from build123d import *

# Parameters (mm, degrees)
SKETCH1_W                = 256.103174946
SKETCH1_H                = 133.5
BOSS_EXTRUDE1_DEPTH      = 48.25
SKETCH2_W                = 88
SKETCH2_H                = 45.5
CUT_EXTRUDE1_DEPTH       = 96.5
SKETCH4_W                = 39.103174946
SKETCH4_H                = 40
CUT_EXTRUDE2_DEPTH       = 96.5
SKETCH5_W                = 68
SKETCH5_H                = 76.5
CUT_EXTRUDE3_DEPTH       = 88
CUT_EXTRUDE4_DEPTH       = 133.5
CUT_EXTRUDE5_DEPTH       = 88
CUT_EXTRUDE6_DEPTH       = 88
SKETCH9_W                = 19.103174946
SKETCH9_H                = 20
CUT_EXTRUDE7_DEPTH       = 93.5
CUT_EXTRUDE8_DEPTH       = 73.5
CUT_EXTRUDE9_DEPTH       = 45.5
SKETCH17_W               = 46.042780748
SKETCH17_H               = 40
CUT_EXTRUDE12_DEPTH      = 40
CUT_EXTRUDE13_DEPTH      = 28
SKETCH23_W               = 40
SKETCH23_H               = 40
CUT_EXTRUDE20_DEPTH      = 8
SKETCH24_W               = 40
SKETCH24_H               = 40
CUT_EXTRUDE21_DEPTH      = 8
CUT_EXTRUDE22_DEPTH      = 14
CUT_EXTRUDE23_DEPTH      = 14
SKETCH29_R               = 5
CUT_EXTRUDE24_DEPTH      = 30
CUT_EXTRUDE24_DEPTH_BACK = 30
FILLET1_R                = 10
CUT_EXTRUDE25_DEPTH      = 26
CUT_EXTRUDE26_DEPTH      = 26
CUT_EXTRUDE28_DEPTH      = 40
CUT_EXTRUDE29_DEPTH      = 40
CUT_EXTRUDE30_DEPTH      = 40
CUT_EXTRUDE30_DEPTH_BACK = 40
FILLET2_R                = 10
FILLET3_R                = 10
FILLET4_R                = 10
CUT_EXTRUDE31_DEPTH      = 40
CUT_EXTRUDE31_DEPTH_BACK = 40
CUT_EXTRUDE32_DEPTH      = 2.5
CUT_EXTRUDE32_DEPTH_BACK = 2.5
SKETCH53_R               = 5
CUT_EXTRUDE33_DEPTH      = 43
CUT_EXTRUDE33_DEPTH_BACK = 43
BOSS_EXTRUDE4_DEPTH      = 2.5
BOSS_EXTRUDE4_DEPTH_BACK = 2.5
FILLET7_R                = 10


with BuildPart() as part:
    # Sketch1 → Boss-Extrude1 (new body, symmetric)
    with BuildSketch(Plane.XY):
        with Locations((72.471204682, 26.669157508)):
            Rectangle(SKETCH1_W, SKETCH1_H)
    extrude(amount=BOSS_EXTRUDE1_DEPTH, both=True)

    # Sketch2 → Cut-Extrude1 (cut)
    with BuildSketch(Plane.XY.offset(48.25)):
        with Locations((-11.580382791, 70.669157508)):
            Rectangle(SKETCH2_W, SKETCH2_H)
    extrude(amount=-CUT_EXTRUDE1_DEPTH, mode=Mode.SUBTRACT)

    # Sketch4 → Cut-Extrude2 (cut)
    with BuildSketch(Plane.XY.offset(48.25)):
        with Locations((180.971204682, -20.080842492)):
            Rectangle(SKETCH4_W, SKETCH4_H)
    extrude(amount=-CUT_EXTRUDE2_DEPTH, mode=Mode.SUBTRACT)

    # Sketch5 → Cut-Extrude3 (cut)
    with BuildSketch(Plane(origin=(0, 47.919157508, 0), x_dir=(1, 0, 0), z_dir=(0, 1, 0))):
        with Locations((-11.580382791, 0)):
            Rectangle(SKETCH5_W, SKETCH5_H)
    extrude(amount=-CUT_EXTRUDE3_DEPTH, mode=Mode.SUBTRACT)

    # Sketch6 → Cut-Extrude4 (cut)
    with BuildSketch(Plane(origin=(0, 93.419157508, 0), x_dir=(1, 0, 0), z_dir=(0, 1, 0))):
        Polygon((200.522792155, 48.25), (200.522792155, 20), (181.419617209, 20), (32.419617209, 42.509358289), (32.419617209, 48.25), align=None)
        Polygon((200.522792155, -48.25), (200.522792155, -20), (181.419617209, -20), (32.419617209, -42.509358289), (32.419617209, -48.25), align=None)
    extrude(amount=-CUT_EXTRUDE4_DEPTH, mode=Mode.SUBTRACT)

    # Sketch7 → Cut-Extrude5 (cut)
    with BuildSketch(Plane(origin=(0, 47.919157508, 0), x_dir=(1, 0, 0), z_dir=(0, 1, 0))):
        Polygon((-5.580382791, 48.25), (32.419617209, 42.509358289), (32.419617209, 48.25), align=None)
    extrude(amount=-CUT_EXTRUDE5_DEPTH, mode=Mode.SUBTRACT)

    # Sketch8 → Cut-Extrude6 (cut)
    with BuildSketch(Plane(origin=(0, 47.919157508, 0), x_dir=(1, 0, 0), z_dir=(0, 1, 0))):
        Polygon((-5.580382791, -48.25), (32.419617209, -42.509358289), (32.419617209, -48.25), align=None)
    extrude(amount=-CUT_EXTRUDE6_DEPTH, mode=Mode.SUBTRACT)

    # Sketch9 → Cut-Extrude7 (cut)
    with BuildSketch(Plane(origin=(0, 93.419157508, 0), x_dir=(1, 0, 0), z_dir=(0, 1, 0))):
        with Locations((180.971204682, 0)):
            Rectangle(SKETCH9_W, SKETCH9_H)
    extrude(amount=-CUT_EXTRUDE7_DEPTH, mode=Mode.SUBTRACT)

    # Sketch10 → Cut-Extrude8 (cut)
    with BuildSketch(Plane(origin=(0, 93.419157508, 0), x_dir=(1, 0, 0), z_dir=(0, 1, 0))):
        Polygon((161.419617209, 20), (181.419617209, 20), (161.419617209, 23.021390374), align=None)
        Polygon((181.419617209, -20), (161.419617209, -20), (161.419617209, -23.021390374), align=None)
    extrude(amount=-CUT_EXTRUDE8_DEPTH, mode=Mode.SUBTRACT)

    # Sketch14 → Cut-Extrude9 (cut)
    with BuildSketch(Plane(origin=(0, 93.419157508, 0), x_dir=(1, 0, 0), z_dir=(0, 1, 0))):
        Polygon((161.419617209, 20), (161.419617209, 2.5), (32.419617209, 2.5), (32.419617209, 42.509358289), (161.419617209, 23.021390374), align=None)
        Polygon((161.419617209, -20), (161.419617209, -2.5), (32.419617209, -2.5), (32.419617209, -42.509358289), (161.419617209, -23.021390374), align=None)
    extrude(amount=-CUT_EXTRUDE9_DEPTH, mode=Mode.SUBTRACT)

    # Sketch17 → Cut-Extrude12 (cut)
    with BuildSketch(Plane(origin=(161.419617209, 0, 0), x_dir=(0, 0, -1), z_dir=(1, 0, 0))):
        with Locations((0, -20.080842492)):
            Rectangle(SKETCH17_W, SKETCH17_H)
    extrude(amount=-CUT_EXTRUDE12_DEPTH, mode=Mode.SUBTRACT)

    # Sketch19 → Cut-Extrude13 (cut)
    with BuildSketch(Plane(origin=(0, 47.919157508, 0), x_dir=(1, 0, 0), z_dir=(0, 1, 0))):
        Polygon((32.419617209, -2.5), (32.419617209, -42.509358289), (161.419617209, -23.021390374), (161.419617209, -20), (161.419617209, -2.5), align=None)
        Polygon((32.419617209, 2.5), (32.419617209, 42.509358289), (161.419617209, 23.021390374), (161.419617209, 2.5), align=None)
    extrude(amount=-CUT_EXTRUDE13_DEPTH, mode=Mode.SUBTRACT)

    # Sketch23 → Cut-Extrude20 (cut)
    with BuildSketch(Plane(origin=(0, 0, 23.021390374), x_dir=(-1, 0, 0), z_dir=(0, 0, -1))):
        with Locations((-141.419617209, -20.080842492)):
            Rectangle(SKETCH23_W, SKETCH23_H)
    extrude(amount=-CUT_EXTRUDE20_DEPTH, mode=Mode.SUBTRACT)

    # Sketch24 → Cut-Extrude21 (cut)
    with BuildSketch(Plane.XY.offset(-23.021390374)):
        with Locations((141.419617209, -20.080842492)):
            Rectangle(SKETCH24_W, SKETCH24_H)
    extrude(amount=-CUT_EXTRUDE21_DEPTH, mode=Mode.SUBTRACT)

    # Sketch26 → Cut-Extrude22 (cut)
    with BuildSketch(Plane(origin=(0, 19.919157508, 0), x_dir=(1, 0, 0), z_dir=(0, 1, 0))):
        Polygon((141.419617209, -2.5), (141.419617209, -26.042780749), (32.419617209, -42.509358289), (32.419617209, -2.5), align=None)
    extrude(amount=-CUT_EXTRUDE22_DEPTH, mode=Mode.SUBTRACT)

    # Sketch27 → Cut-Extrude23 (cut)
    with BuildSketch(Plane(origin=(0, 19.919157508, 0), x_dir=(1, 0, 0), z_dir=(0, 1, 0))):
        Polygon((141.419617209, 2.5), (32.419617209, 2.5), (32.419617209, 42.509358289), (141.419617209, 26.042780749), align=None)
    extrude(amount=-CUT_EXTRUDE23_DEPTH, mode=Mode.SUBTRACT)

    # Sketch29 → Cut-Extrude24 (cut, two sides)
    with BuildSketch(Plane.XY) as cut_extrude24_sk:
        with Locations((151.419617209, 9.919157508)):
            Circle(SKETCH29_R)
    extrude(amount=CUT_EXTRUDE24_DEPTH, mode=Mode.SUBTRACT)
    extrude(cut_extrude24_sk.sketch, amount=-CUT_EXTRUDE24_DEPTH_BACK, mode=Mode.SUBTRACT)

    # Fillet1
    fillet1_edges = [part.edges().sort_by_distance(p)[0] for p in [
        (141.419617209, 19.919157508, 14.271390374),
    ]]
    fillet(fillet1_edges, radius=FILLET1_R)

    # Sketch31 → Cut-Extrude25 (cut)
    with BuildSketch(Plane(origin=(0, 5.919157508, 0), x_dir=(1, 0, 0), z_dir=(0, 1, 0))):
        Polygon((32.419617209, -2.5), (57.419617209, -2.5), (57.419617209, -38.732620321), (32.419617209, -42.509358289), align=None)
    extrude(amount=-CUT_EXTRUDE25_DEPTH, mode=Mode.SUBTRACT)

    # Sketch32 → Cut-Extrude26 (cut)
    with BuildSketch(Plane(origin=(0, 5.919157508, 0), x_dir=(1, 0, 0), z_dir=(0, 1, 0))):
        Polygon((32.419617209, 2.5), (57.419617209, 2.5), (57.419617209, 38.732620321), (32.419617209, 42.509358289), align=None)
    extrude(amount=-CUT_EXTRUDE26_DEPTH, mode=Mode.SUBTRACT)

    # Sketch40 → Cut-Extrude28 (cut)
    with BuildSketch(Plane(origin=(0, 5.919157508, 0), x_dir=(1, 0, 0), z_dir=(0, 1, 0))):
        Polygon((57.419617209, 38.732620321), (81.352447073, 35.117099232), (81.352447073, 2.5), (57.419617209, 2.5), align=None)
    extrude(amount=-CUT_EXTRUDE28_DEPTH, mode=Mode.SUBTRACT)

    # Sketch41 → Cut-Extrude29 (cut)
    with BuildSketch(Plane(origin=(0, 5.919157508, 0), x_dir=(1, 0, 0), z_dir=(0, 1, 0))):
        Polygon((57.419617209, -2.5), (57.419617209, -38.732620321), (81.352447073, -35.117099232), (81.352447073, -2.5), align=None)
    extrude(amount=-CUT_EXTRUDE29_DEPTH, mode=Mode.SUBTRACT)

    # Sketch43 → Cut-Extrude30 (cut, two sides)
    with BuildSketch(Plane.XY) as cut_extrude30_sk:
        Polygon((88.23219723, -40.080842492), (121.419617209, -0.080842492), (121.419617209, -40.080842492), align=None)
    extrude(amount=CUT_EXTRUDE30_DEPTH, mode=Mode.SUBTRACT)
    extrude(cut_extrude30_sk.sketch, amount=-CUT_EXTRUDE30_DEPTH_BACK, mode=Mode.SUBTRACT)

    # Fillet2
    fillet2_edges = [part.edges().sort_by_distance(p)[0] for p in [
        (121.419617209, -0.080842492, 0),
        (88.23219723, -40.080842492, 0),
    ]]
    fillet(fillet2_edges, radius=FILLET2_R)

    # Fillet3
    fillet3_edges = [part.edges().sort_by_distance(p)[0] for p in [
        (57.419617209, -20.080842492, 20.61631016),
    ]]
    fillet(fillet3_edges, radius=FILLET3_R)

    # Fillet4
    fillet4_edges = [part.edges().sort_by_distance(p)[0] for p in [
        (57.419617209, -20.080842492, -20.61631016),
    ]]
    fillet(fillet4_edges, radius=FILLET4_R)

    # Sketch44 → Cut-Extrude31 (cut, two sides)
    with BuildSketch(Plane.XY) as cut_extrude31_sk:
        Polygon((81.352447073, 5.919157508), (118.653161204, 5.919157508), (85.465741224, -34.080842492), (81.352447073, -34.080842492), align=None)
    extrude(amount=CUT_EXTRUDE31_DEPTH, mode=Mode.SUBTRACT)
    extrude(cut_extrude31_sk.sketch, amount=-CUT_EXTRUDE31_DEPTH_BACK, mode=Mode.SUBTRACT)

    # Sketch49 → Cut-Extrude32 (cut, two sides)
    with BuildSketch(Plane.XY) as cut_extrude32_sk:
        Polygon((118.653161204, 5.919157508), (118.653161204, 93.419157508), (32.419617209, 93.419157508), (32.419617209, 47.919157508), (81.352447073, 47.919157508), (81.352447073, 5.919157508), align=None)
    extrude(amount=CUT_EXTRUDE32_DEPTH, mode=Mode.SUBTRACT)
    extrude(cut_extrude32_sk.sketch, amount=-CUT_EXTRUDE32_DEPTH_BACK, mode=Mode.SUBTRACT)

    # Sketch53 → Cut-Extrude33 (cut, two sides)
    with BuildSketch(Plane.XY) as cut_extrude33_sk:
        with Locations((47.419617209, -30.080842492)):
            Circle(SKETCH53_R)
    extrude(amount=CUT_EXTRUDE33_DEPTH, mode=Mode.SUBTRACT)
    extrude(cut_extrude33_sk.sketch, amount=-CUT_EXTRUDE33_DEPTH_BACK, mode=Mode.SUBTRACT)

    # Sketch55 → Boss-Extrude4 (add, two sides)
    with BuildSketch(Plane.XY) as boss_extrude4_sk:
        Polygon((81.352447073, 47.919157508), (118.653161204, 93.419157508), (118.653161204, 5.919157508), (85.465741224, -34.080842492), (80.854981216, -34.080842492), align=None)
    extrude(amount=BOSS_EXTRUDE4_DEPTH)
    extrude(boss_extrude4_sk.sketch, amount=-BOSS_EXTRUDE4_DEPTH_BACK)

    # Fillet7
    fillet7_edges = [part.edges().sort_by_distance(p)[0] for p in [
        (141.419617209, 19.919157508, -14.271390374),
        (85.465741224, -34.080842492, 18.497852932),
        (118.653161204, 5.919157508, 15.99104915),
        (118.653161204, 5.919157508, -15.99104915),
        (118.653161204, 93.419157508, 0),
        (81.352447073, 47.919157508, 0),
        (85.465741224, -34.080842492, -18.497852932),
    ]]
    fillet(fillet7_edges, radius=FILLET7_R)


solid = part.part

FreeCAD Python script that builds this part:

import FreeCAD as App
import Part
import Sketcher

V = App.Vector


def edges_at(feature, points):
    """Names of the edges that pass closest to the given points."""
    edges = feature.Shape.Edges
    near = lambda p: min(range(len(edges)), key=lambda i: edges[i].distToShape(Part.Vertex(*p))[0])
    return sorted({f"Edge{near(p) + 1}" for p in points})

doc = App.newDocument("Part")
body = doc.addObject("PartDesign::Body", "Body")

# Sketch on XY plane
sketch1 = body.newObject("Sketcher::SketchObject", "Sketch")
sketch1.AttachmentSupport = (doc.getObject("XY_Plane"), [""])
sketch1.MapMode = "FlatFace"
sketch1.addGeometry(Part.LineSegment(V(-56, 93, 0), V(-56, -40, 0)), False)
sketch1.addGeometry(Part.LineSegment(V(-56, -40, 0), V(201, -40, 0)), False)
sketch1.addGeometry(Part.LineSegment(V(201, -40, 0), V(201, 93, 0)), False)
sketch1.addGeometry(Part.LineSegment(V(201, 93, 0), V(-56, 93, 0)), False)
sketch1.addConstraint(Sketcher.Constraint("Coincident", 0, 2, 1, 1))
sketch1.addConstraint(Sketcher.Constraint("Coincident", 1, 2, 2, 1))
sketch1.addConstraint(Sketcher.Constraint("Coincident", 2, 2, 3, 1))
sketch1.addConstraint(Sketcher.Constraint("Coincident", 3, 2, 0, 1))
sketch1.addConstraint(Sketcher.Constraint("Vertical", 0))
sketch1.addConstraint(Sketcher.Constraint("Horizontal", 1))
sketch1.addConstraint(Sketcher.Constraint("Vertical", 2))
sketch1.addConstraint(Sketcher.Constraint("Horizontal", 3))
sketch1.addConstraint(Sketcher.Constraint("DistanceY", 0, 2, 0, 1, 133.5))
sketch1.addConstraint(Sketcher.Constraint("DistanceX", 1, 1, 1, 2, 256.103175))
sketch1.addConstraint(Sketcher.Constraint("DistanceX", 0, 2, -1, 1, 55.580383))
sketch1.addConstraint(Sketcher.Constraint("DistanceY", 0, 2, -1, 1, 40.080842))
pad1 = body.newObject("PartDesign::Pad", "Pad")
pad1.Profile = sketch1
pad1.Length = 96.5
pad1.Midplane = True

# Sketch on XY plane
sketch2 = body.newObject("Sketcher::SketchObject", "Sketch001")
sketch2.AttachmentSupport = (doc.getObject("XY_Plane"), [""])
sketch2.MapMode = "FlatFace"
sketch2.AttachmentOffset = App.Placement(V(0, 0, 48.25), App.Rotation())
sketch2.addGeometry(Part.LineSegment(V(-56, 93, 0), V(-56, 48, 0)), False)
sketch2.addGeometry(Part.LineSegment(V(-56, 48, 0), V(32, 48, 0)), False)
sketch2.addGeometry(Part.LineSegment(V(32, 48, 0), V(32, 93, 0)), False)
sketch2.addGeometry(Part.LineSegment(V(32, 93, 0), V(-56, 93, 0)), False)
sketch2.addConstraint(Sketcher.Constraint("Coincident", 0, 2, 1, 1))
sketch2.addConstraint(Sketcher.Constraint("Coincident", 1, 2, 2, 1))
sketch2.addConstraint(Sketcher.Constraint("Coincident", 2, 2, 3, 1))
sketch2.addConstraint(Sketcher.Constraint("Coincident", 3, 2, 0, 1))
sketch2.addConstraint(Sketcher.Constraint("Vertical", 0))
sketch2.addConstraint(Sketcher.Constraint("Horizontal", 1))
sketch2.addConstraint(Sketcher.Constraint("Vertical", 2))
sketch2.addConstraint(Sketcher.Constraint("Horizontal", 3))
sketch2.addConstraint(Sketcher.Constraint("DistanceX", 1, 1, 1, 2, 88.0))
sketch2.addConstraint(Sketcher.Constraint("DistanceY", 0, 2, 0, 1, 45.5))
sketch2.addConstraint(Sketcher.Constraint("DistanceX", 0, 2, -1, 1, 55.580383))
sketch2.addConstraint(Sketcher.Constraint("DistanceY", -1, 1, 0, 2, 47.919158))
pocket1 = body.newObject("PartDesign::Pocket", "Pocket")
pocket1.Profile = sketch2
pocket1.Length = 96.5

# Sketch on XY plane
sketch3 = body.newObject("Sketcher::SketchObject", "Sketch002")
sketch3.AttachmentSupport = (doc.getObject("XY_Plane"), [""])
sketch3.MapMode = "FlatFace"
sketch3.AttachmentOffset = App.Placement(V(0, 0, 48.25), App.Rotation())
sketch3.addGeometry(Part.LineSegment(V(161, 0, 0), V(161, -40, 0)), False)
sketch3.addGeometry(Part.LineSegment(V(161, -40, 0), V(201, -40, 0)), False)
sketch3.addGeometry(Part.LineSegment(V(201, -40, 0), V(201, 0, 0)), False)
sketch3.addGeometry(Part.LineSegment(V(201, 0, 0), V(161, 0, 0)), False)
sketch3.addConstraint(Sketcher.Constraint("Coincident", 0, 2, 1, 1))
sketch3.addConstraint(Sketcher.Constraint("Coincident", 1, 2, 2, 1))
sketch3.addConstraint(Sketcher.Constraint("Coincident", 2, 2, 3, 1))
sketch3.addConstraint(Sketcher.Constraint("Coincident", 3, 2, 0, 1))
sketch3.addConstraint(Sketcher.Constraint("Vertical", 0))
sketch3.addConstraint(Sketcher.Constraint("Horizontal", 1))
sketch3.addConstraint(Sketcher.Constraint("Vertical", 2))
sketch3.addConstraint(Sketcher.Constraint("Horizontal", 3))
sketch3.addConstraint(Sketcher.Constraint("DistanceY", 0, 2, 0, 1, 40.0))
sketch3.addConstraint(Sketcher.Constraint("DistanceX", 1, 1, 1, 2, 39.103175))
sketch3.addConstraint(Sketcher.Constraint("DistanceX", -1, 1, 0, 2, 161.419617))
sketch3.addConstraint(Sketcher.Constraint("DistanceY", 0, 2, -1, 1, 40.080842))
pocket2 = body.newObject("PartDesign::Pocket", "Pocket001")
pocket2.Profile = sketch3
pocket2.Length = 96.5

# Sketch on XZ plane
sketch4 = body.newObject("Sketcher::SketchObject", "Sketch003")
sketch4.AttachmentSupport = (doc.getObject("XZ_Plane"), [""])
sketch4.MapMode = "FlatFace"
sketch4.AttachmentOffset = App.Placement(V(0, 0, -47.919158), App.Rotation())
sketch4.addGeometry(Part.LineSegment(V(-46, -38, 0), V(-46, 38, 0)), False)
sketch4.addGeometry(Part.LineSegment(V(-46, 38, 0), V(22, 38, 0)), False)
sketch4.addGeometry(Part.LineSegment(V(22, 38, 0), V(22, -38, 0)), False)
sketch4.addGeometry(Part.LineSegment(V(22, -38, 0), V(-46, -38, 0)), False)
sketch4.addConstraint(Sketcher.Constraint("Coincident", 0, 2, 1, 1))
sketch4.addConstraint(Sketcher.Constraint("Coincident", 1, 2, 2, 1))
sketch4.addConstraint(Sketcher.Constraint("Coincident", 2, 2, 3, 1))
sketch4.addConstraint(Sketcher.Constraint("Coincident", 3, 2, 0, 1))
sketch4.addConstraint(Sketcher.Constraint("Vertical", 0))
sketch4.addConstraint(Sketcher.Constraint("Horizontal", 1))
sketch4.addConstraint(Sketcher.Constraint("Vertical", 2))
sketch4.addConstraint(Sketcher.Constraint("Horizontal", 3))
sketch4.addConstraint(Sketcher.Constraint("DistanceX", 1, 1, 1, 2, 68.0))
sketch4.addConstraint(Sketcher.Constraint("DistanceY", 0, 1, 0, 2, 76.5))
sketch4.addConstraint(Sketcher.Constraint("DistanceY", -1, 1, 0, 2, 38.25))
sketch4.addConstraint(Sketcher.Constraint("DistanceX", 0, 2, -1, 1, 45.580383))
pocket3 = body.newObject("PartDesign::Pocket", "Pocket002")
pocket3.Profile = sketch4
pocket3.Length = 88
pocket3.Reversed = True

# Sketch on XZ plane
sketch5 = body.newObject("Sketcher::SketchObject", "Sketch004")
sketch5.AttachmentSupport = (doc.getObject("XZ_Plane"), [""])
sketch5.MapMode = "FlatFace"
sketch5.AttachmentOffset = App.Placement(V(0, 0, -93.419158), App.Rotation())
sketch5.addGeometry(Part.LineSegment(V(201, -20, 0), V(201, -48, 0)), False)
sketch5.addGeometry(Part.LineSegment(V(201, -48, 0), V(32, -48, 0)), False)
sketch5.addGeometry(Part.LineSegment(V(32, -48, 0), V(32, -43, 0)), False)
sketch5.addGeometry(Part.LineSegment(V(32, -43, 0), V(181, -20, 0)), False)
sketch5.addGeometry(Part.LineSegment(V(181, -20, 0), V(201, -20, 0)), False)
sketch5.addGeometry(Part.LineSegment(V(201, 48, 0), V(201, 20, 0)), False)
sketch5.addGeometry(Part.LineSegment(V(201, 20, 0), V(181, 20, 0)), False)
sketch5.addGeometry(Part.LineSegment(V(181, 20, 0), V(32, 43, 0)), False)
sketch5.addGeometry(Part.LineSegment(V(32, 43, 0), V(32, 48, 0)), False)
sketch5.addGeometry(Part.LineSegment(V(32, 48, 0), V(201, 48, 0)), False)
sketch5.addConstraint(Sketcher.Constraint("Coincident", 0, 2, 1, 1))
sketch5.addConstraint(Sketcher.Constraint("Coincident", 1, 2, 2, 1))
sketch5.addConstraint(Sketcher.Constraint("Coincident", 2, 2, 3, 1))
sketch5.addConstraint(Sketcher.Constraint("Coincident", 3, 2, 4, 1))
sketch5.addConstraint(Sketcher.Constraint("Coincident", 4, 2, 0, 1))
sketch5.addConstraint(Sketcher.Constraint("Coincident", 5, 2, 6, 1))
sketch5.addConstraint(Sketcher.Constraint("Coincident", 6, 2, 7, 1))
sketch5.addConstraint(Sketcher.Constraint("Coincident", 7, 2, 8, 1))
sketch5.addConstraint(Sketcher.Constraint("Coincident", 8, 2, 9, 1))
sketch5.addConstraint(Sketcher.Constraint("Coincident", 9, 2, 5, 1))
sketch5.addConstraint(Sketcher.Constraint("Vertical", 0))
sketch5.addConstraint(Sketcher.Constraint("Horizontal", 1))
sketch5.addConstraint(Sketcher.Constraint("Vertical", 2))
sketch5.addConstraint(Sketcher.Constraint("Horizontal", 4))
sketch5.addConstraint(Sketcher.Constraint("Vertical", 5))
sketch5.addConstraint(Sketcher.Constraint("Horizontal", 6))
sketch5.addConstraint(Sketcher.Constraint("Vertical", 8))
sketch5.addConstraint(Sketcher.Constraint("Horizontal", 9))
sketch5.addConstraint(Sketcher.Constraint("Symmetric", 4, 2, 5, 2, -1))
sketch5.addConstraint(Sketcher.Constraint("Symmetric", 2, 2, 7, 2, -1))
sketch5.addConstraint(Sketcher.Constraint("Vertical", 3, 2, 6, 2))
sketch5.addConstraint(Sketcher.Constraint("Equal", 0, 5))
sketch5.addConstraint(Sketcher.Constraint("DistanceY", 3, 2, -1, 1, 20.0))
sketch5.addConstraint(Sketcher.Constraint("DistanceX", 2, 2, 3, 2, 149.0))
sketch5.addConstraint(Sketcher.Constraint("DistanceY", 0, 2, 0, 1, 28.25))
sketch5.addConstraint(Sketcher.Constraint("DistanceY", 2, 1, 2, 2, 5.740642))
sketch5.addConstraint(Sketcher.Constraint("DistanceX", 1, 2, 1, 1, 168.103175))
sketch5.addConstraint(Sketcher.Constraint("DistanceX", -1, 1, 0, 2, 200.522792))
pocket4 = body.newObject("PartDesign::Pocket", "Pocket003")
pocket4.Profile = sketch5
pocket4.Length = 133.5
pocket4.Reversed = True

# Sketch on XZ plane
sketch6 = body.newObject("Sketcher::SketchObject", "Sketch005")
sketch6.AttachmentSupport = (doc.getObject("XZ_Plane"), [""])
sketch6.MapMode = "FlatFace"
sketch6.AttachmentOffset = App.Placement(V(0, 0, -47.919158), App.Rotation())
sketch6.addGeometry(Part.LineSegment(V(-6, -48, 0), V(32, -43, 0)), False)
sketch6.addGeometry(Part.LineSegment(V(32, -43, 0), V(32, -48, 0)), False)
sketch6.addGeometry(Part.LineSegment(V(32, -48, 0), V(-6, -48, 0)), False)
sketch6.addConstraint(Sketcher.Constraint("Coincident", 0, 2, 1, 1))
sketch6.addConstraint(Sketcher.Constraint("Coincident", 1, 2, 2, 1))
sketch6.addConstraint(Sketcher.Constraint("Coincident", 2, 2, 0, 1))
sketch6.addConstraint(Sketcher.Constraint("Vertical", 1))
sketch6.addConstraint(Sketcher.Constraint("Horizontal", 2))
sketch6.addConstraint(Sketcher.Constraint("DistanceX", 2, 2, 2, 1, 38.0))
sketch6.addConstraint(Sketcher.Constraint("DistanceY", 1, 2, -1, 1, 48.25))
sketch6.addConstraint(Sketcher.Constraint("DistanceY", 1, 2, 1, 1, 5.740642))
sketch6.addConstraint(Sketcher.Constraint("DistanceX", -1, 1, 0, 2, 32.419617))
pocket5 = body.newObject("PartDesign::Pocket", "Pocket004")
pocket5.Profile = sketch6
pocket5.Length = 88
pocket5.Reversed = True

# Sketch on XZ plane
sketch7 = body.newObject("Sketcher::SketchObject", "Sketch006")
sketch7.AttachmentSupport = (doc.getObject("XZ_Plane"), [""])
sketch7.MapMode = "FlatFace"
sketch7.AttachmentOffset = App.Placement(V(0, 0, -47.919158), App.Rotation())
sketch7.addGeometry(Part.LineSegment(V(32, 43, 0), V(-6, 48, 0)), False)
sketch7.addGeometry(Part.LineSegment(V(-6, 48, 0), V(32, 48, 0)), False)
sketch7.addGeometry(Part.LineSegment(V(32, 48, 0), V(32, 43, 0)), False)
sketch7.addConstraint(Sketcher.Constraint("Coincident", 0, 2, 1, 1))
sketch7.addConstraint(Sketcher.Constraint("Coincident", 1, 2, 2, 1))
sketch7.addConstraint(Sketcher.Constraint("Coincident", 2, 2, 0, 1))
sketch7.addConstraint(Sketcher.Constraint("Horizontal", 1))
sketch7.addConstraint(Sketcher.Constraint("Vertical", 2))
sketch7.addConstraint(Sketcher.Constraint("DistanceX", 1, 1, 1, 2, 38.0))
sketch7.addConstraint(Sketcher.Constraint("DistanceY", -1, 1, 0, 2, 48.25))
sketch7.addConstraint(Sketcher.Constraint("DistanceY", 2, 2, 2, 1, 5.740642))
sketch7.addConstraint(Sketcher.Constraint("DistanceX", 0, 2, -1, 1, 5.580383))
pocket6 = body.newObject("PartDesign::Pocket", "Pocket005")
pocket6.Profile = sketch7
pocket6.Length = 88
pocket6.Reversed = True

# Sketch on XZ plane
sketch8 = body.newObject("Sketcher::SketchObject", "Sketch007")
sketch8.AttachmentSupport = (doc.getObject("XZ_Plane"), [""])
sketch8.MapMode = "FlatFace"
sketch8.AttachmentOffset = App.Placement(V(0, 0, -93.419158), App.Rotation())
sketch8.addGeometry(Part.LineSegment(V(171, -10, 0), V(171, 10, 0)), False)
sketch8.addGeometry(Part.LineSegment(V(171, 10, 0), V(191, 10, 0)), False)
sketch8.addGeometry(Part.LineSegment(V(191, 10, 0), V(191, -10, 0)), False)
sketch8.addGeometry(Part.LineSegment(V(191, -10, 0), V(171, -10, 0)), False)
sketch8.addConstraint(Sketcher.Constraint("Coincident", 0, 2, 1, 1))
sketch8.addConstraint(Sketcher.Constraint("Coincident", 1, 2, 2, 1))
sketch8.addConstraint(Sketcher.Constraint("Coincident", 2, 2, 3, 1))
sketch8.addConstraint(Sketcher.Constraint("Coincident", 3, 2, 0, 1))
sketch8.addConstraint(Sketcher.Constraint("Vertical", 0))
sketch8.addConstraint(Sketcher.Constraint("Horizontal", 1))
sketch8.addConstraint(Sketcher.Constraint("Vertical", 2))
sketch8.addConstraint(Sketcher.Constraint("Horizontal", 3))
sketch8.addConstraint(Sketcher.Constraint("DistanceY", 0, 1, 0, 2, 20.0))
sketch8.addConstraint(Sketcher.Constraint("DistanceY", -1, 1, 0, 2, 10.0))
sketch8.addConstraint(Sketcher.Constraint("DistanceX", 1, 1, 1, 2, 19.103175))
sketch8.addConstraint(Sketcher.Constraint("DistanceX", -1, 1, 0, 2, 171.419617))
pocket7 = body.newObject("PartDesign::Pocket", "Pocket006")
pocket7.Profile = sketch8
pocket7.Length = 93.5
pocket7.Reversed = True

# Sketch on XZ plane
sketch9 = body.newObject("Sketcher::SketchObject", "Sketch008")
sketch9.AttachmentSupport = (doc.getObject("XZ_Plane"), [""])
sketch9.MapMode = "FlatFace"
sketch9.AttachmentOffset = App.Placement(V(0, 0, -93.419158), App.Rotation())
sketch9.addGeometry(Part.LineSegment(V(161.4, -20, 0), V(181.4, -20, 0)), False)
sketch9.addGeometry(Part.LineSegment(V(181.4, -20, 0), V(161.4, -23, 0)), False)
sketch9.addGeometry(Part.LineSegment(V(161.4, -23, 0), V(161.4, -20, 0)), False)
sketch9.addGeometry(Part.LineSegment(V(181.4, 20, 0), V(161.4, 20, 0)), False)
sketch9.addGeometry(Part.LineSegment(V(161.4, 20, 0), V(161.4, 23, 0)), False)
sketch9.addGeometry(Part.LineSegment(V(161.4, 23, 0), V(181.4, 20, 0)), False)
sketch9.addConstraint(Sketcher.Constraint("Coincident", 0, 2, 1, 1))
sketch9.addConstraint(Sketcher.Constraint("Coincident", 1, 2, 2, 1))
sketch9.addConstraint(Sketcher.Constraint("Coincident", 2, 2, 0, 1))
sketch9.addConstraint(Sketcher.Constraint("Coincident", 3, 2, 4, 1))
sketch9.addConstraint(Sketcher.Constraint("Coincident", 4, 2, 5, 1))
sketch9.addConstraint(Sketcher.Constraint("Coincident", 5, 2, 3, 1))
sketch9.addConstraint(Sketcher.Constraint("Horizontal", 0))
sketch9.addConstraint(Sketcher.Constraint("Vertical", 2))
sketch9.addConstraint(Sketcher.Constraint("Horizontal", 3))
sketch9.addConstraint(Sketcher.Constraint("Vertical", 4))
sketch9.addConstraint(Sketcher.Constraint("Symmetric", 2, 2, 3, 2, -1))
sketch9.addConstraint(Sketcher.Constraint("Vertical", 0, 2, 5, 2))
sketch9.addConstraint(Sketcher.Constraint("Equal", 2, 4))
sketch9.addConstraint(Sketcher.Constraint("DistanceX", 0, 1, 0, 2, 20.0))
sketch9.addConstraint(Sketcher.Constraint("DistanceY", 0, 2, -1, 1, 20.0))
sketch9.addConstraint(Sketcher.Constraint("DistanceY", 2, 1, 2, 2, 3.02139))
sketch9.addConstraint(Sketcher.Constraint("DistanceX", -1, 1, 0, 2, 181.419617))
pocket8 = body.newObject("PartDesign::Pocket", "Pocket007")
pocket8.Profile = sketch9
pocket8.Length = 73.5
pocket8.Reversed = True

# Sketch on XZ plane
sketch10 = body.newObject("Sketcher::SketchObject", "Sketch009")
sketch10.AttachmentSupport = (doc.getObject("XZ_Plane"), [""])
sketch10.MapMode = "FlatFace"
sketch10.AttachmentOffset = App.Placement(V(0, 0, -93.419158), App.Rotation())
sketch10.addGeometry(Part.LineSegment(V(161, -2, 0), V(161, -23, 0)), False)
sketch10.addGeometry(Part.LineSegment(V(161, -23, 0), V(32, -43, 0)), False)
sketch10.addGeometry(Part.LineSegment(V(32, -43, 0), V(32, -2, 0)), False)
sketch10.addGeometry(Part.LineSegment(V(32, -2, 0), V(161, -2, 0)), False)
sketch10.addGeometry(Part.LineSegment(V(161, 2, 0), V(32, 2, 0)), False)
sketch10.addGeometry(Part.LineSegment(V(32, 2, 0), V(32, 43, 0)), False)
sketch10.addGeometry(Part.LineSegment(V(32, 43, 0), V(161, 23, 0)), False)
sketch10.addGeometry(Part.LineSegment(V(161, 23, 0), V(161, 2, 0)), False)
sketch10.addConstraint(Sketcher.Constraint("Coincident", 0, 2, 1, 1))
sketch10.addConstraint(Sketcher.Constraint("Coincident", 1, 2, 2, 1))
sketch10.addConstraint(Sketcher.Constraint("Coincident", 2, 2, 3, 1))
sketch10.addConstraint(Sketcher.Constraint("Coincident", 3, 2, 0, 1))
sketch10.addConstraint(Sketcher.Constraint("Coincident", 4, 2, 5, 1))
sketch10.addConstraint(Sketcher.Constraint("Coincident", 5, 2, 6, 1))
sketch10.addConstraint(Sketcher.Constraint("Coincident", 6, 2, 7, 1))
sketch10.addConstraint(Sketcher.Constraint("Coincident", 7, 2, 4, 1))
sketch10.addConstraint(Sketcher.Constraint("Vertical", 0))
sketch10.addConstraint(Sketcher.Constraint("Vertical", 2))
sketch10.addConstraint(Sketcher.Constraint("Horizontal", 3))
sketch10.addConstraint(Sketcher.Constraint("Horizontal", 4))
sketch10.addConstraint(Sketcher.Constraint("Vertical", 5))
sketch10.addConstraint(Sketcher.Constraint("Vertical", 7))
sketch10.addConstraint(Sketcher.Constraint("Symmetric", 2, 2, 4, 2, -1))
sketch10.addConstraint(Sketcher.Constraint("Symmetric", 0, 2, 6, 2, -1))
sketch10.addConstraint(Sketcher.Constraint("Equal", 2, 5))
sketch10.addConstraint(Sketcher.Constraint("DistanceX", 3, 1, 3, 2, 129.0))
sketch10.addConstraint(Sketcher.Constraint("DistanceY", 2, 2, 4, 2, 5.0))
sketch10.addConstraint(Sketcher.Constraint("DistanceY", 0, 2, 0, 1, 20.52139))
sketch10.addConstraint(Sketcher.Constraint("DistanceY", 2, 1, 2, 2, 40.009358))
sketch10.addConstraint(Sketcher.Constraint("DistanceX", -1, 1, 0, 2, 161.419617))
pocket9 = body.newObject("PartDesign::Pocket", "Pocket008")
pocket9.Profile = sketch10
pocket9.Length = 45.5
pocket9.Reversed = True

# Sketch on YZ plane
sketch11 = body.newObject("Sketcher::SketchObject", "Sketch010")
sketch11.AttachmentSupport = (doc.getObject("YZ_Plane"), [""])
sketch11.MapMode = "FlatFace"
sketch11.AttachmentOffset = App.Placement(V(0, 0, 161.419617), App.Rotation())
sketch11.addGeometry(Part.LineSegment(V(0, 23, 0), V(-40, 23, 0)), False)
sketch11.addGeometry(Part.LineSegment(V(-40, 23, 0), V(-40, -23, 0)), False)
sketch11.addGeometry(Part.LineSegment(V(-40, -23, 0), V(0, -23, 0)), False)
sketch11.addGeometry(Part.LineSegment(V(0, -23, 0), V(0, 23, 0)), False)
sketch11.addConstraint(Sketcher.Constraint("Coincident", 0, 2, 1, 1))
sketch11.addConstraint(Sketcher.Constraint("Coincident", 1, 2, 2, 1))
sketch11.addConstraint(Sketcher.Constraint("Coincident", 2, 2, 3, 1))
sketch11.addConstraint(Sketcher.Constraint("Coincident", 3, 2, 0, 1))
sketch11.addConstraint(Sketcher.Constraint("Horizontal", 0))
sketch11.addConstraint(Sketcher.Constraint("Vertical", 1))
sketch11.addConstraint(Sketcher.Constraint("Horizontal", 2))
sketch11.addConstraint(Sketcher.Constraint("Vertical", 3))
sketch11.addConstraint(Sketcher.Constraint("DistanceX", 0, 2, 0, 1, 40.0))
sketch11.addConstraint(Sketcher.Constraint("DistanceY", 1, 2, 1, 1, 46.042781))
sketch11.addConstraint(Sketcher.Constraint("DistanceY", -1, 1, 0, 2, 23.02139))
sketch11.addConstraint(Sketcher.Constraint("DistanceX", 0, 2, -1, 1, 40.080842))
pocket10 = body.newObject("PartDesign::Pocket", "Pocket009")
pocket10.Profile = sketch11
pocket10.Length = 40

# Sketch on XZ plane
sketch12 = body.newObject("Sketcher::SketchObject", "Sketch011")
sketch12.AttachmentSupport = (doc.getObject("XZ_Plane"), [""])
sketch12.MapMode = "FlatFace"
sketch12.AttachmentOffset = App.Placement(V(0, 0, -47.919158), App.Rotation())
sketch12.addGeometry(Part.LineSegment(V(32, 2, 0), V(32, 43, 0)), False)
sketch12.addGeometry(Part.LineSegment(V(32, 43, 0), V(161, 23, 0)), False)
sketch12.addGeometry(Part.LineSegment(V(161, 23, 0), V(161, 2, 0)), False)
sketch12.addGeometry(Part.LineSegment(V(161, 2, 0), V(32, 2, 0)), False)
sketch12.addGeometry(Part.LineSegment(V(32, -43, 0), V(32, -2, 0)), False)
sketch12.addGeometry(Part.LineSegment(V(32, -2, 0), V(161, -2, 0)), False)
sketch12.addGeometry(Part.LineSegment(V(161, -2, 0), V(161, -23, 0)), False)
sketch12.addGeometry(Part.LineSegment(V(161, -23, 0), V(32, -43, 0)), False)
sketch12.addConstraint(Sketcher.Constraint("Coincident", 0, 2, 1, 1))
sketch12.addConstraint(Sketcher.Constraint("Coincident", 1, 2, 2, 1))
sketch12.addConstraint(Sketcher.Constraint("Coincident", 2, 2, 3, 1))
sketch12.addConstraint(Sketcher.Constraint("Coincident", 3, 2, 0, 1))
sketch12.addConstraint(Sketcher.Constraint("Coincident", 4, 2, 5, 1))
sketch12.addConstraint(Sketcher.Constraint("Coincident", 5, 2, 6, 1))
sketch12.addConstraint(Sketcher.Constraint("Coincident", 6, 2, 7, 1))
sketch12.addConstraint(Sketcher.Constraint("Coincident", 7, 2, 4, 1))
sketch12.addConstraint(Sketcher.Constraint("Vertical", 0))
sketch12.addConstraint(Sketcher.Constraint("Vertical", 2))
sketch12.addConstraint(Sketcher.Constraint("Horizontal", 3))
sketch12.addConstraint(Sketcher.Constraint("Vertical", 4))
sketch12.addConstraint(Sketcher.Constraint("Horizontal", 5))
sketch12.addConstraint(Sketcher.Constraint("Vertical", 6))
sketch12.addConstraint(Sketcher.Constraint("Symmetric", 3, 2, 4, 2, -1))
sketch12.addConstraint(Sketcher.Constraint("Symmetric", 1, 2, 6, 2, -1))
sketch12.addConstraint(Sketcher.Constraint("Equal", 0, 4))
sketch12.addConstraint(Sketcher.Constraint("DistanceX", 3, 2, 3, 1, 129.0))
sketch12.addConstraint(Sketcher.Constraint("DistanceY", 4, 2, 3, 2, 5.0))
sketch12.addConstraint(Sketcher.Constraint("DistanceY", 0, 1, 0, 2, 40.009358))
sketch12.addConstraint(Sketcher.Constraint("DistanceY", 2, 2, 2, 1, 20.52139))
sketch12.addConstraint(Sketcher.Constraint("DistanceX", -1, 1, 0, 2, 32.419617))
pocket11 = body.newObject("PartDesign::Pocket", "Pocket010")
pocket11.Profile = sketch12
pocket11.Length = 28
pocket11.Reversed = True

# Sketch on XY plane
sketch13 = body.newObject("Sketcher::SketchObject", "Sketch012")
sketch13.AttachmentSupport = (doc.getObject("XY_Plane"), [""])
sketch13.MapMode = "FlatFace"
sketch13.AttachmentOffset = App.Placement(V(0, 0, 23.02139), App.Rotation())
sketch13.addGeometry(Part.LineSegment(V(161, 0, 0), V(161, -40, 0)), False)
sketch13.addGeometry(Part.LineSegment(V(161, -40, 0), V(121, -40, 0)), False)
sketch13.addGeometry(Part.LineSegment(V(121, -40, 0), V(121, 0, 0)), False)
sketch13.addGeometry(Part.LineSegment(V(121, 0, 0), V(161, 0, 0)), False)
sketch13.addConstraint(Sketcher.Constraint("Coincident", 0, 2, 1, 1))
sketch13.addConstraint(Sketcher.Constraint("Coincident", 1, 2, 2, 1))
sketch13.addConstraint(Sketcher.Constraint("Coincident", 2, 2, 3, 1))
sketch13.addConstraint(Sketcher.Constraint("Coincident", 3, 2, 0, 1))
sketch13.addConstraint(Sketcher.Constraint("Vertical", 0))
sketch13.addConstraint(Sketcher.Constraint("Horizontal", 1))
sketch13.addConstraint(Sketcher.Constraint("Vertical", 2))
sketch13.addConstraint(Sketcher.Constraint("Horizontal", 3))
sketch13.addConstraint(Sketcher.Constraint("Equal", 3, 0))
sketch13.addConstraint(Sketcher.Constraint("DistanceX", 1, 2, 1, 1, 40.0))
sketch13.addConstraint(Sketcher.Constraint("DistanceX", -1, 1, 0, 2, 161.419617))
sketch13.addConstraint(Sketcher.Constraint("DistanceY", 0, 2, -1, 1, 40.080842))
pocket12 = body.newObject("PartDesign::Pocket", "Pocket011")
pocket12.Profile = sketch13
pocket12.Length = 8
pocket12.Reversed = True

# Sketch on XY plane
sketch14 = body.newObject("Sketcher::SketchObject", "Sketch013")
sketch14.AttachmentSupport = (doc.getObject("XY_Plane"), [""])
sketch14.MapMode = "FlatFace"
sketch14.AttachmentOffset = App.Placement(V(0, 0, -23.02139), App.Rotation())
sketch14.addGeometry(Part.LineSegment(V(121, 0, 0), V(121, -40, 0)), False)
sketch14.addGeometry(Part.LineSegment(V(121, -40, 0), V(161, -40, 0)), False)
sketch14.addGeometry(Part.LineSegment(V(161, -40, 0), V(161, 0, 0)), False)
sketch14.addGeometry(Part.LineSegment(V(161, 0, 0), V(121, 0, 0)), False)
sketch14.addConstraint(Sketcher.Constraint("Coincident", 0, 2, 1, 1))
sketch14.addConstraint(Sketcher.Constraint("Coincident", 1, 2, 2, 1))
sketch14.addConstraint(Sketcher.Constraint("Coincident", 2, 2, 3, 1))
sketch14.addConstraint(Sketcher.Constraint("Coincident", 3, 2, 0, 1))
sketch14.addConstraint(Sketcher.Constraint("Vertical", 0))
sketch14.addConstraint(Sketcher.Constraint("Horizontal", 1))
sketch14.addConstraint(Sketcher.Constraint("Vertical", 2))
sketch14.addConstraint(Sketcher.Constraint("Horizontal", 3))
sketch14.addConstraint(Sketcher.Constraint("Equal", 3, 0))
sketch14.addConstraint(Sketcher.Constraint("DistanceX", 1, 1, 1, 2, 40.0))
sketch14.addConstraint(Sketcher.Constraint("DistanceX", -1, 1, 0, 2, 121.419617))
sketch14.addConstraint(Sketcher.Constraint("DistanceY", 0, 2, -1, 1, 40.080842))
pocket13 = body.newObject("PartDesign::Pocket", "Pocket012")
pocket13.Profile = sketch14
pocket13.Length = 8

# Sketch on XZ plane
sketch15 = body.newObject("Sketcher::SketchObject", "Sketch014")
sketch15.AttachmentSupport = (doc.getObject("XZ_Plane"), [""])
sketch15.MapMode = "FlatFace"
sketch15.AttachmentOffset = App.Placement(V(0, 0, -19.919158), App.Rotation())
sketch15.addGeometry(Part.LineSegment(V(141, 26, 0), V(141, 2, 0)), False)
sketch15.addGeometry(Part.LineSegment(V(141, 2, 0), V(32, 2, 0)), False)
sketch15.addGeometry(Part.LineSegment(V(32, 2, 0), V(32, 43, 0)), False)
sketch15.addGeometry(Part.LineSegment(V(32, 43, 0), V(141, 26, 0)), False)
sketch15.addConstraint(Sketcher.Constraint("Coincident", 0, 2, 1, 1))
sketch15.addConstraint(Sketcher.Constraint("Coincident", 1, 2, 2, 1))
sketch15.addConstraint(Sketcher.Constraint("Coincident", 2, 2, 3, 1))
sketch15.addConstraint(Sketcher.Constraint("Coincident", 3, 2, 0, 1))
sketch15.addConstraint(Sketcher.Constraint("Vertical", 0))
sketch15.addConstraint(Sketcher.Constraint("Horizontal", 1))
sketch15.addConstraint(Sketcher.Constraint("Vertical", 2))
sketch15.addConstraint(Sketcher.Constraint("DistanceX", 1, 2, 1, 1, 109.0))
sketch15.addConstraint(Sketcher.Constraint("DistanceY", -1, 1, 0, 2, 2.5))
sketch15.addConstraint(Sketcher.Constraint("DistanceY", 0, 2, 0, 1, 23.542781))
sketch15.addConstraint(Sketcher.Constraint("DistanceY", 2, 1, 2, 2, 40.009358))
sketch15.addConstraint(Sketcher.Constraint("DistanceX", -1, 1, 0, 2, 141.419617))
pocket14 = body.newObject("PartDesign::Pocket", "Pocket013")
pocket14.Profile = sketch15
pocket14.Length = 14
pocket14.Reversed = True

# Sketch on XZ plane
sketch16 = body.newObject("Sketcher::SketchObject", "Sketch015")
sketch16.AttachmentSupport = (doc.getObject("XZ_Plane"), [""])
sketch16.MapMode = "FlatFace"
sketch16.AttachmentOffset = App.Placement(V(0, 0, -19.919158), App.Rotation())
sketch16.addGeometry(Part.LineSegment(V(32, -2, 0), V(141, -2, 0)), False)
sketch16.addGeometry(Part.LineSegment(V(141, -2, 0), V(141, -26, 0)), False)
sketch16.addGeometry(Part.LineSegment(V(141, -26, 0), V(32, -43, 0)), False)
sketch16.addGeometry(Part.LineSegment(V(32, -43, 0), V(32, -2, 0)), False)
sketch16.addConstraint(Sketcher.Constraint("Coincident", 0, 2, 1, 1))
sketch16.addConstraint(Sketcher.Constraint("Coincident", 1, 2, 2, 1))
sketch16.addConstraint(Sketcher.Constraint("Coincident", 2, 2, 3, 1))
sketch16.addConstraint(Sketcher.Constraint("Coincident", 3, 2, 0, 1))
sketch16.addConstraint(Sketcher.Constraint("Horizontal", 0))
sketch16.addConstraint(Sketcher.Constraint("Vertical", 1))
sketch16.addConstraint(Sketcher.Constraint("Vertical", 3))
sketch16.addConstraint(Sketcher.Constraint("DistanceX", 0, 1, 0, 2, 109.0))
sketch16.addConstraint(Sketcher.Constraint("DistanceY", 0, 2, -1, 1, 2.5))
sketch16.addConstraint(Sketcher.Constraint("DistanceY", 1, 2, 1, 1, 23.542781))
sketch16.addConstraint(Sketcher.Constraint("DistanceY", 3, 1, 3, 2, 40.009358))
sketch16.addConstraint(Sketcher.Constraint("DistanceX", -1, 1, 0, 2, 141.419617))
pocket15 = body.newObject("PartDesign::Pocket", "Pocket014")
pocket15.Profile = sketch16
pocket15.Length = 14
pocket15.Reversed = True

# Sketch on XY plane
sketch17 = body.newObject("Sketcher::SketchObject", "Sketch016")
sketch17.AttachmentSupport = (doc.getObject("XY_Plane"), [""])
sketch17.MapMode = "FlatFace"
sketch17.addGeometry(Part.Circle(V(151, 10, 0), V(0, 0, 1), 5), False)
sketch17.addConstraint(Sketcher.Constraint("Diameter", 0, 10.0))
sketch17.addConstraint(Sketcher.Constraint("DistanceX", -1, 1, 0, 3, 151.419617))
sketch17.addConstraint(Sketcher.Constraint("DistanceY", -1, 1, 0, 3, 9.919158))
pocket16 = body.newObject("PartDesign::Pocket", "Pocket015")
pocket16.Profile = sketch17
pocket16.Type = "ThroughAll"
pocket16.Midplane = True
doc.recompute()

fillet = body.newObject("PartDesign::Fillet", "Fillet")
fillet.Base = (pocket16, edges_at(pocket16, [(141.42, 19.919, 14.271)]))
fillet.Radius = 10

# Sketch on XZ plane
sketch18 = body.newObject("Sketcher::SketchObject", "Sketch017")
sketch18.AttachmentSupport = (doc.getObject("XZ_Plane"), [""])
sketch18.MapMode = "FlatFace"
sketch18.AttachmentOffset = App.Placement(V(0, 0, -5.919158), App.Rotation())
sketch18.addGeometry(Part.LineSegment(V(57, 2, 0), V(32, 2, 0)), False)
sketch18.addGeometry(Part.LineSegment(V(32, 2, 0), V(32, 43, 0)), False)
sketch18.addGeometry(Part.LineSegment(V(32, 43, 0), V(57, 39, 0)), False)
sketch18.addGeometry(Part.LineSegment(V(57, 39, 0), V(57, 2, 0)), False)
sketch18.addConstraint(Sketcher.Constraint("Coincident", 0, 2, 1, 1))
sketch18.addConstraint(Sketcher.Constraint("Coincident", 1, 2, 2, 1))
sketch18.addConstraint(Sketcher.Constraint("Coincident", 2, 2, 3, 1))
sketch18.addConstraint(Sketcher.Constraint("Coincident", 3, 2, 0, 1))
sketch18.addConstraint(Sketcher.Constraint("Horizontal", 0))
sketch18.addConstraint(Sketcher.Constraint("Vertical", 1))
sketch18.addConstraint(Sketcher.Constraint("Vertical", 3))
sketch18.addConstraint(Sketcher.Constraint("DistanceX", 0, 2, 0, 1, 25.0))
sketch18.addConstraint(Sketcher.Constraint("DistanceY", -1, 1, 0, 2, 2.5))
sketch18.addConstraint(Sketcher.Constraint("DistanceY", 1, 1, 1, 2, 40.009358))
sketch18.addConstraint(Sketcher.Constraint("DistanceY", 3, 2, 3, 1, 36.23262))
sketch18.addConstraint(Sketcher.Constraint("DistanceX", -1, 1, 0, 2, 32.419617))
pocket17 = body.newObject("PartDesign::Pocket", "Pocket016")
pocket17.Profile = sketch18
pocket17.Length = 26
pocket17.Reversed = True

# Sketch on XZ plane
sketch19 = body.newObject("Sketcher::SketchObject", "Sketch018")
sketch19.AttachmentSupport = (doc.getObject("XZ_Plane"), [""])
sketch19.MapMode = "FlatFace"
sketch19.AttachmentOffset = App.Placement(V(0, 0, -5.919158), App.Rotation())
sketch19.addGeometry(Part.LineSegment(V(32, -2, 0), V(57, -2, 0)), False)
sketch19.addGeometry(Part.LineSegment(V(57, -2, 0), V(57, -39, 0)), False)
sketch19.addGeometry(Part.LineSegment(V(57, -39, 0), V(32, -43, 0)), False)
sketch19.addGeometry(Part.LineSegment(V(32, -43, 0), V(32, -2, 0)), False)
sketch19.addConstraint(Sketcher.Constraint("Coincident", 0, 2, 1, 1))
sketch19.addConstraint(Sketcher.Constraint("Coincident", 1, 2, 2, 1))
sketch19.addConstraint(Sketcher.Constraint("Coincident", 2, 2, 3, 1))
sketch19.addConstraint(Sketcher.Constraint("Coincident", 3, 2, 0, 1))
sketch19.addConstraint(Sketcher.Constraint("Horizontal", 0))
sketch19.addConstraint(Sketcher.Constraint("Vertical", 1))
sketch19.addConstraint(Sketcher.Constraint("Vertical", 3))
sketch19.addConstraint(Sketcher.Constraint("DistanceX", 0, 1, 0, 2, 25.0))
sketch19.addConstraint(Sketcher.Constraint("DistanceY", 0, 2, -1, 1, 2.5))
sketch19.addConstraint(Sketcher.Constraint("DistanceY", 1, 2, 1, 1, 36.23262))
sketch19.addConstraint(Sketcher.Constraint("DistanceY", 3, 1, 3, 2, 40.009358))
sketch19.addConstraint(Sketcher.Constraint("DistanceX", -1, 1, 0, 2, 57.419617))
pocket18 = body.newObject("PartDesign::Pocket", "Pocket017")
pocket18.Profile = sketch19
pocket18.Length = 26
pocket18.Reversed = True

# Sketch on XZ plane
sketch20 = body.newObject("Sketcher::SketchObject", "Sketch019")
sketch20.AttachmentSupport = (doc.getObject("XZ_Plane"), [""])
sketch20.MapMode = "FlatFace"
sketch20.AttachmentOffset = App.Placement(V(0, 0, -5.919158), App.Rotation())
sketch20.addGeometry(Part.LineSegment(V(81, -35, 0), V(57, -39, 0)), False)
sketch20.addGeometry(Part.LineSegment(V(57, -39, 0), V(57, -2, 0)), False)
sketch20.addGeometry(Part.LineSegment(V(57, -2, 0), V(81, -2, 0)), False)
sketch20.addGeometry(Part.LineSegment(V(81, -2, 0), V(81, -35, 0)), False)
sketch20.addConstraint(Sketcher.Constraint("Coincident", 0, 2, 1, 1))
sketch20.addConstraint(Sketcher.Constraint("Coincident", 1, 2, 2, 1))
sketch20.addConstraint(Sketcher.Constraint("Coincident", 2, 2, 3, 1))
sketch20.addConstraint(Sketcher.Constraint("Coincident", 3, 2, 0, 1))
sketch20.addConstraint(Sketcher.Constraint("Vertical", 1))
sketch20.addConstraint(Sketcher.Constraint("Horizontal", 2))
sketch20.addConstraint(Sketcher.Constraint("Vertical", 3))
sketch20.addConstraint(Sketcher.Constraint("DistanceY", 1, 2, -1, 1, 2.5))
sketch20.addConstraint(Sketcher.Constraint("DistanceY", 3, 2, 3, 1, 32.617099))
sketch20.addConstraint(Sketcher.Constraint("DistanceX", 2, 1, 2, 2, 23.93283))
sketch20.addConstraint(Sketcher.Constraint("DistanceY", 1, 1, 1, 2, 36.23262))
sketch20.addConstraint(Sketcher.Constraint("DistanceX", -1, 1, 0, 2, 57.419617))
pocket19 = body.newObject("PartDesign::Pocket", "Pocket018")
pocket19.Profile = sketch20
pocket19.Length = 40
pocket19.Reversed = True

# Sketch on XZ plane
sketch21 = body.newObject("Sketcher::SketchObject", "Sketch020")
sketch21.AttachmentSupport = (doc.getObject("XZ_Plane"), [""])
sketch21.MapMode = "FlatFace"
sketch21.AttachmentOffset = App.Placement(V(0, 0, -5.919158), App.Rotation())
sketch21.addGeometry(Part.LineSegment(V(57, 2, 0), V(57, 39, 0)), False)
sketch21.addGeometry(Part.LineSegment(V(57, 39, 0), V(81, 35, 0)), False)
sketch21.addGeometry(Part.LineSegment(V(81, 35, 0), V(81, 2, 0)), False)
sketch21.addGeometry(Part.LineSegment(V(81, 2, 0), V(57, 2, 0)), False)
sketch21.addConstraint(Sketcher.Constraint("Coincident", 0, 2, 1, 1))
sketch21.addConstraint(Sketcher.Constraint("Coincident", 1, 2, 2, 1))
sketch21.addConstraint(Sketcher.Constraint("Coincident", 2, 2, 3, 1))
sketch21.addConstraint(Sketcher.Constraint("Coincident", 3, 2, 0, 1))
sketch21.addConstraint(Sketcher.Constraint("Vertical", 0))
sketch21.addConstraint(Sketcher.Constraint("Vertical", 2))
sketch21.addConstraint(Sketcher.Constraint("Horizontal", 3))
sketch21.addConstraint(Sketcher.Constraint("DistanceY", -1, 1, 2, 2, 2.5))
sketch21.addConstraint(Sketcher.Constraint("DistanceY", 2, 2, 2, 1, 32.617099))
sketch21.addConstraint(Sketcher.Constraint("DistanceX", 3, 2, 3, 1, 23.93283))
sketch21.addConstraint(Sketcher.Constraint("DistanceY", 0, 1, 0, 2, 36.23262))
sketch21.addConstraint(Sketcher.Constraint("DistanceX", -1, 1, 0, 2, 57.419617))
pocket20 = body.newObject("PartDesign::Pocket", "Pocket019")
pocket20.Profile = sketch21
pocket20.Length = 40
pocket20.Reversed = True

# Sketch on XY plane
sketch22 = body.newObject("Sketcher::SketchObject", "Sketch021")
sketch22.AttachmentSupport = (doc.getObject("XY_Plane"), [""])
sketch22.MapMode = "FlatFace"
sketch22.addGeometry(Part.LineSegment(V(121, 0, 0), V(88, -40, 0)), False)
sketch22.addGeometry(Part.LineSegment(V(88, -40, 0), V(121, -40, 0)), False)
sketch22.addGeometry(Part.LineSegment(V(121, -40, 0), V(121, 0, 0)), False)
sketch22.addConstraint(Sketcher.Constraint("Coincident", 0, 2, 1, 1))
sketch22.addConstraint(Sketcher.Constraint("Coincident", 1, 2, 2, 1))
sketch22.addConstraint(Sketcher.Constraint("Coincident", 2, 2, 0, 1))
sketch22.addConstraint(Sketcher.Constraint("Horizontal", 1))
sketch22.addConstraint(Sketcher.Constraint("Vertical", 2))
sketch22.addConstraint(Sketcher.Constraint("DistanceY", 2, 1, 2, 2, 40.0))
sketch22.addConstraint(Sketcher.Constraint("DistanceX", 1, 1, 1, 2, 33.18742))
sketch22.addConstraint(Sketcher.Constraint("DistanceX", -1, 1, 0, 2, 88.232197))
sketch22.addConstraint(Sketcher.Constraint("DistanceY", 0, 2, -1, 1, 40.080842))
pocket21 = body.newObject("PartDesign::Pocket", "Pocket020")
pocket21.Profile = sketch22
pocket21.Type = "ThroughAll"
pocket21.Midplane = True
doc.recompute()

fillet2 = body.newObject("PartDesign::Fillet", "Fillet001")
fillet2.Base = (pocket21, edges_at(pocket21, [(121.42, -0.081, 0), (88.232, -40.081, 0)]))
fillet2.Radius = 10
doc.recompute()

fillet3 = body.newObject("PartDesign::Fillet", "Fillet002")
fillet3.Base = (fillet2, edges_at(fillet2, [(57.42, -20.081, 20.616)]))
fillet3.Radius = 10
doc.recompute()

fillet4 = body.newObject("PartDesign::Fillet", "Fillet003")
fillet4.Base = (fillet3, edges_at(fillet3, [(57.42, -20.081, -20.616)]))
fillet4.Radius = 10

# Sketch on XY plane
sketch23 = body.newObject("Sketcher::SketchObject", "Sketch022")
sketch23.AttachmentSupport = (doc.getObject("XY_Plane"), [""])
sketch23.MapMode = "FlatFace"
sketch23.addGeometry(Part.LineSegment(V(118.7, 5.9, 0), V(81.4, 5.9, 0)), False)
sketch23.addGeometry(Part.LineSegment(V(81.4, 5.9, 0), V(81.4, -34.1, 0)), False)
sketch23.addGeometry(Part.LineSegment(V(81.4, -34.1, 0), V(85.5, -34.1, 0)), False)
sketch23.addGeometry(Part.LineSegment(V(85.5, -34.1, 0), V(118.7, 5.9, 0)), False)
sketch23.addConstraint(Sketcher.Constraint("Coincident", 0, 2, 1, 1))
sketch23.addConstraint(Sketcher.Constraint("Coincident", 1, 2, 2, 1))
sketch23.addConstraint(Sketcher.Constraint("Coincident", 2, 2, 3, 1))
sketch23.addConstraint(Sketcher.Constraint("Coincident", 3, 2, 0, 1))
sketch23.addConstraint(Sketcher.Constraint("Horizontal", 0))
sketch23.addConstraint(Sketcher.Constraint("Vertical", 1))
sketch23.addConstraint(Sketcher.Constraint("Horizontal", 2))
sketch23.addConstraint(Sketcher.Constraint("DistanceY", 1, 2, 1, 1, 40.0))
sketch23.addConstraint(Sketcher.Constraint("Distance", 3, 51.975041))
sketch23.addConstraint(Sketcher.Constraint("DistanceX", 0, 2, 0, 1, 37.300714))
sketch23.addConstraint(Sketcher.Constraint("DistanceX", -1, 1, 2, 2, 85.465741))
sketch23.addConstraint(Sketcher.Constraint("DistanceY", -1, 1, 0, 2, 5.919158))
pocket22 = body.newObject("PartDesign::Pocket", "Pocket021")
pocket22.Profile = sketch23
pocket22.Type = "ThroughAll"
pocket22.Midplane = True

# Sketch on XY plane
sketch24 = body.newObject("Sketcher::SketchObject", "Sketch023")
sketch24.AttachmentSupport = (doc.getObject("XY_Plane"), [""])
sketch24.MapMode = "FlatFace"
sketch24.addGeometry(Part.LineSegment(V(119, 6, 0), V(119, 93, 0)), False)
sketch24.addGeometry(Part.LineSegment(V(119, 93, 0), V(32, 93, 0)), False)
sketch24.addGeometry(Part.LineSegment(V(32, 93, 0), V(32, 48, 0)), False)
sketch24.addGeometry(Part.LineSegment(V(32, 48, 0), V(81, 48, 0)), False)
sketch24.addGeometry(Part.LineSegment(V(81, 48, 0), V(81, 6, 0)), False)
sketch24.addGeometry(Part.LineSegment(V(81, 6, 0), V(119, 6, 0)), False)
sketch24.addConstraint(Sketcher.Constraint("Coincident", 0, 2, 1, 1))
sketch24.addConstraint(Sketcher.Constraint("Coincident", 1, 2, 2, 1))
sketch24.addConstraint(Sketcher.Constraint("Coincident", 2, 2, 3, 1))
sketch24.addConstraint(Sketcher.Constraint("Coincident", 3, 2, 4, 1))
sketch24.addConstraint(Sketcher.Constraint("Coincident", 4, 2, 5, 1))
sketch24.addConstraint(Sketcher.Constraint("Coincident", 5, 2, 0, 1))
sketch24.addConstraint(Sketcher.Constraint("Vertical", 0))
sketch24.addConstraint(Sketcher.Constraint("Horizontal", 1))
sketch24.addConstraint(Sketcher.Constraint("Vertical", 2))
sketch24.addConstraint(Sketcher.Constraint("Horizontal", 3))
sketch24.addConstraint(Sketcher.Constraint("Vertical", 4))
sketch24.addConstraint(Sketcher.Constraint("Horizontal", 5))
sketch24.addConstraint(Sketcher.Constraint("DistanceY", 4, 2, 4, 1, 42.0))
sketch24.addConstraint(Sketcher.Constraint("DistanceY", 0, 1, 0, 2, 87.5))
sketch24.addConstraint(Sketcher.Constraint("DistanceX", 3, 1, 3, 2, 48.93283))
sketch24.addConstraint(Sketcher.Constraint("DistanceX", 1, 2, 1, 1, 86.233544))
sketch24.addConstraint(Sketcher.Constraint("DistanceX", -1, 1, 0, 2, 118.653161))
sketch24.addConstraint(Sketcher.Constraint("DistanceY", -1, 1, 0, 2, 93.419158))
pocket23 = body.newObject("PartDesign::Pocket", "Pocket022")
pocket23.Profile = sketch24
pocket23.Type = "ThroughAll"
pocket23.Midplane = True

# Sketch on XY plane
sketch25 = body.newObject("Sketcher::SketchObject", "Sketch024")
sketch25.AttachmentSupport = (doc.getObject("XY_Plane"), [""])
sketch25.MapMode = "FlatFace"
sketch25.addGeometry(Part.Circle(V(47, -30, 0), V(0, 0, 1), 5), False)
sketch25.addConstraint(Sketcher.Constraint("Diameter", 0, 10.0))
sketch25.addConstraint(Sketcher.Constraint("DistanceX", -1, 1, 0, 3, 47.419617))
sketch25.addConstraint(Sketcher.Constraint("DistanceY", 0, 3, -1, 1, 30.080842))
pocket24 = body.newObject("PartDesign::Pocket", "Pocket023")
pocket24.Profile = sketch25
pocket24.Type = "ThroughAll"
pocket24.Midplane = True

# Sketch on XY plane
sketch26 = body.newObject("Sketcher::SketchObject", "Sketch025")
sketch26.AttachmentSupport = (doc.getObject("XY_Plane"), [""])
sketch26.MapMode = "FlatFace"
sketch26.addGeometry(Part.LineSegment(V(118.7, 93.4, 0), V(81.4, 47.9, 0)), False)
sketch26.addGeometry(Part.LineSegment(V(81.4, 47.9, 0), V(80.9, -34.1, 0)), False)
sketch26.addGeometry(Part.LineSegment(V(80.9, -34.1, 0), V(85.5, -34.1, 0)), False)
sketch26.addGeometry(Part.LineSegment(V(85.5, -34.1, 0), V(118.7, 5.9, 0)), False)
sketch26.addGeometry(Part.LineSegment(V(118.7, 5.9, 0), V(118.7, 93.4, 0)), False)
sketch26.addConstraint(Sketcher.Constraint("Coincident", 0, 2, 1, 1))
sketch26.addConstraint(Sketcher.Constraint("Coincident", 1, 2, 2, 1))
sketch26.addConstraint(Sketcher.Constraint("Coincident", 2, 2, 3, 1))
sketch26.addConstraint(Sketcher.Constraint("Coincident", 3, 2, 4, 1))
sketch26.addConstraint(Sketcher.Constraint("Coincident", 4, 2, 0, 1))
sketch26.addConstraint(Sketcher.Constraint("Horizontal", 2))
sketch26.addConstraint(Sketcher.Constraint("Vertical", 4))
sketch26.addConstraint(Sketcher.Constraint("DistanceY", 4, 1, 4, 2, 87.5))
sketch26.addConstraint(Sketcher.Constraint("DistanceY", 1, 2, 0, 2, 82.0))
sketch26.addConstraint(Sketcher.Constraint("DistanceY", 2, 2, 3, 2, 40.0))
sketch26.addConstraint(Sketcher.Constraint("DistanceX", 2, 1, 2, 2, 4.61076))
sketch26.addConstraint(Sketcher.Constraint("Distance", 1, 82.001509))
sketch26.addConstraint(Sketcher.Constraint("Distance", 3, 51.975041))
sketch26.addConstraint(Sketcher.Constraint("DistanceX", -1, 1, 1, 2, 80.854981))
sketch26.addConstraint(Sketcher.Constraint("DistanceY", -1, 1, 0, 2, 47.919158))
pad2 = body.newObject("PartDesign::Pad", "Pad001")
pad2.Profile = sketch26
pad2.Type = "TwoLengths"
pad2.Length = 2.5
pad2.Length2 = 2.5
doc.recompute()

fillet5 = body.newObject("PartDesign::Fillet", "Fillet004")
fillet5.Base = (pad2, edges_at(pad2, [
    (141.42, 19.919, -14.271),
    (85.466, -34.081, 18.498),
    (118.653, 5.919, 15.991),
    (118.653, 5.919, -15.991),
    (118.653, 93.419, 0),
    (81.352, 47.919, 0),
    (85.466, -34.081, -18.498),
]))
fillet5.Radius = 10

doc.recompute()
